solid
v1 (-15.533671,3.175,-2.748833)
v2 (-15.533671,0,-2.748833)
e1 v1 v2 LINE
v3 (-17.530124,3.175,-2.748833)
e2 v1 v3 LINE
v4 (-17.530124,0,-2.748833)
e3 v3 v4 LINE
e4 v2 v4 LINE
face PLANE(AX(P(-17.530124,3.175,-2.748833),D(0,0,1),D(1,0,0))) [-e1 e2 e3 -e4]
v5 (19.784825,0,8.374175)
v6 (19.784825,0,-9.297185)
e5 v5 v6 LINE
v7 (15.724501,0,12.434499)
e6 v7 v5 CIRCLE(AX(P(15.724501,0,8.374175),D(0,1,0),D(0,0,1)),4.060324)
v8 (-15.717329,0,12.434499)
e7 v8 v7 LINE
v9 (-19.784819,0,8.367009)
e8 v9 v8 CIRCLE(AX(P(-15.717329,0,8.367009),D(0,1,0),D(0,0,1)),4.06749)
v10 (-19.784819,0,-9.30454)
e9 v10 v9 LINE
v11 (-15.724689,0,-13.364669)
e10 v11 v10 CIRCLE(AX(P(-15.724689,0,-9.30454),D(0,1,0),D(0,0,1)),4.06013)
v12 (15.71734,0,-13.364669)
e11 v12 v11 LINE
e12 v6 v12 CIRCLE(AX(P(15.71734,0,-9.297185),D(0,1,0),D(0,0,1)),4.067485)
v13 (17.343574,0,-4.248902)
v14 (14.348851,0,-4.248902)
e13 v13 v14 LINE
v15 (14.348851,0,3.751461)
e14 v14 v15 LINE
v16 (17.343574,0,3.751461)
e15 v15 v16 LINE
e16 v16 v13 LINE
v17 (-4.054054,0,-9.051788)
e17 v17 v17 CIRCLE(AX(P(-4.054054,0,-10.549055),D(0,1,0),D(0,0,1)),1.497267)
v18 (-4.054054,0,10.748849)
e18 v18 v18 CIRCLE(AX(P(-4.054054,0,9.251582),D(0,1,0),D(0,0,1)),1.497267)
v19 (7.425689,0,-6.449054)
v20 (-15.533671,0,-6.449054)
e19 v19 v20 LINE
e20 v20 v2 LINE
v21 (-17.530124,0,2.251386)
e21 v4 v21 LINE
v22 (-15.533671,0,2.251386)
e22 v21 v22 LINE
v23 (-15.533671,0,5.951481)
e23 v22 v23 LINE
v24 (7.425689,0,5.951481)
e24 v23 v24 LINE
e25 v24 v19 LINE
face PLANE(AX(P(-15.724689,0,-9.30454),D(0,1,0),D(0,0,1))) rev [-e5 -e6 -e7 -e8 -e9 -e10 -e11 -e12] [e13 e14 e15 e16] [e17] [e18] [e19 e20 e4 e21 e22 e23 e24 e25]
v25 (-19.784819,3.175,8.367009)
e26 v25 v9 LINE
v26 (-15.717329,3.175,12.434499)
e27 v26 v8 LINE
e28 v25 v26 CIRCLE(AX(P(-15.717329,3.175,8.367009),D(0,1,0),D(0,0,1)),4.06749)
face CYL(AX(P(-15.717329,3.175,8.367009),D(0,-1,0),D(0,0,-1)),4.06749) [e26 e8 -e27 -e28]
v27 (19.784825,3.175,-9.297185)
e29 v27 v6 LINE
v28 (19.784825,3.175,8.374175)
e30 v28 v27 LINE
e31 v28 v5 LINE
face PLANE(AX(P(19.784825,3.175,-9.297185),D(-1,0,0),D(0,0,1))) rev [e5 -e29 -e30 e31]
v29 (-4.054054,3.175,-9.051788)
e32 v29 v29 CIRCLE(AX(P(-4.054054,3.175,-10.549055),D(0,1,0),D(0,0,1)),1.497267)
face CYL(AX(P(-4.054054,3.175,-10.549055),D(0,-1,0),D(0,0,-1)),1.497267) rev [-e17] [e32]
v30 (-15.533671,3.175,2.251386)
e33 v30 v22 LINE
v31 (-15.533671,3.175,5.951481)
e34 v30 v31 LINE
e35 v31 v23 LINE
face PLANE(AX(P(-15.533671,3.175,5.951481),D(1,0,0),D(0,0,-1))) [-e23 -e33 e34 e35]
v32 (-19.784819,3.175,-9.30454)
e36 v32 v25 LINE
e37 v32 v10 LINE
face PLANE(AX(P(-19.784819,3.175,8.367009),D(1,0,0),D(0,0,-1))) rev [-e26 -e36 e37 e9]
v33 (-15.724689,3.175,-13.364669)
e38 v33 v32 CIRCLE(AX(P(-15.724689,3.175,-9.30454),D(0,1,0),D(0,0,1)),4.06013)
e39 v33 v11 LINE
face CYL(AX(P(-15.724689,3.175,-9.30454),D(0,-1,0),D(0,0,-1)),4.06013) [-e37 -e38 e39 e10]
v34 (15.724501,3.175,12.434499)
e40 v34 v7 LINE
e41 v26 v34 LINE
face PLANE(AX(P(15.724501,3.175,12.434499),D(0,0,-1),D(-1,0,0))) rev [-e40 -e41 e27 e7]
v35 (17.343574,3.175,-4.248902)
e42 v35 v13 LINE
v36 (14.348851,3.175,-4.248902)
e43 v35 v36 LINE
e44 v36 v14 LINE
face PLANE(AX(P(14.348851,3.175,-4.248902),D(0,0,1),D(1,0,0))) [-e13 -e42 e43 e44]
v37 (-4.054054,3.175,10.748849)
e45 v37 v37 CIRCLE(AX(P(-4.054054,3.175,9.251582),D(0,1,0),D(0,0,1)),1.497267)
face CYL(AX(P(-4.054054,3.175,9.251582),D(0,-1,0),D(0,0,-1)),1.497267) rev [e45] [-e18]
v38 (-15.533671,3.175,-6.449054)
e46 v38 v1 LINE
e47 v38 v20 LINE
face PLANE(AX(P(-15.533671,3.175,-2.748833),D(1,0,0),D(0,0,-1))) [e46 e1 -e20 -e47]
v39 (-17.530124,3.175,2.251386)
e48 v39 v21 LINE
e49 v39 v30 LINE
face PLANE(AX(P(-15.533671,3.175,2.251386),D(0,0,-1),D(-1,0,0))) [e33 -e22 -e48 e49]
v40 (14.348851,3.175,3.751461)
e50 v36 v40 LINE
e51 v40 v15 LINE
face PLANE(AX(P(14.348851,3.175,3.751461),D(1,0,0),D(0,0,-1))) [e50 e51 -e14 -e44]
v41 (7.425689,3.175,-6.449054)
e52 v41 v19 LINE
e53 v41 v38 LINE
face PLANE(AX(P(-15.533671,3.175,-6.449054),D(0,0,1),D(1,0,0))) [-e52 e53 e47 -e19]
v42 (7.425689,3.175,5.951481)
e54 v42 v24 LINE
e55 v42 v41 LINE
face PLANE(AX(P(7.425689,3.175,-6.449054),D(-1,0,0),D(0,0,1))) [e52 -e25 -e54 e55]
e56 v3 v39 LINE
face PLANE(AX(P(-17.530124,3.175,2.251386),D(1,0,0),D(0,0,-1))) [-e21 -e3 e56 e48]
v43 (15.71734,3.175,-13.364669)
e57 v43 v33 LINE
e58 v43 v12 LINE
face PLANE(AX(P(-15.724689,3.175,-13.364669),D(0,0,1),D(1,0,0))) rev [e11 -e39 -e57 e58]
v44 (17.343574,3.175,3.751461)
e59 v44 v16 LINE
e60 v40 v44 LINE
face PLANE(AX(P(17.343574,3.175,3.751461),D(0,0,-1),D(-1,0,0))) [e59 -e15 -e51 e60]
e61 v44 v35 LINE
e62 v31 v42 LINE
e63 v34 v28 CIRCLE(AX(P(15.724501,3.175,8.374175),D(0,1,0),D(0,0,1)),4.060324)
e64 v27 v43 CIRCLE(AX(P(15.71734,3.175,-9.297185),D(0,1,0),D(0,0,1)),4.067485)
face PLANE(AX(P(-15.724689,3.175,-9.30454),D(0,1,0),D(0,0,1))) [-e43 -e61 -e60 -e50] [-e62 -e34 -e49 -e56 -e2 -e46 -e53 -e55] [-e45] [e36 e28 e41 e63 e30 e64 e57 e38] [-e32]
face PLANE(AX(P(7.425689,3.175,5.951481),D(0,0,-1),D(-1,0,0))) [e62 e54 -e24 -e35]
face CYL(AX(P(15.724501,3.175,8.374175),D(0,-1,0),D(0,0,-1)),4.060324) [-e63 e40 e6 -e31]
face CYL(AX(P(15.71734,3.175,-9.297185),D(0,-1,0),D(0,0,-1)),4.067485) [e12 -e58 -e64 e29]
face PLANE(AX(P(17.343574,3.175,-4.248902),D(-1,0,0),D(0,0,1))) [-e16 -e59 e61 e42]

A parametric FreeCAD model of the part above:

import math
import FreeCAD as App
import Part
import Sketcher
Q = App.Units.Quantity


def add_polygon(sketch, points):
    """Adds a closed chain of lines whose ends are joined by coincident constraints."""
    first, n = sketch.GeometryCount, len(points)
    for a, b in zip(points, points[1:] + points[:1]):
        sketch.addGeometry(Part.LineSegment(App.Vector(*a, 0), App.Vector(*b, 0)), False)
    for i in range(n):
        sketch.addConstraint(Sketcher.Constraint("Coincident", first + i, 2, first + (i + 1) % n, 1))

doc = App.newDocument("Part")
body = doc.addObject("PartDesign::Body", "Body")

# Sketch on XZ plane
sketch1 = doc.addObject("Sketcher::SketchObject", "Sketch")
body.addObject(sketch1)
sketch1.AttachmentSupport = (doc.XZ_Plane, [""])
sketch1.MapMode = "FlatFace"
sketch1.addGeometry(Part.LineSegment(App.Vector(15.7, -13.4, 0), App.Vector(-15.7, -13.4, 0)), False)  # 0
sketch1.addGeometry(Part.ArcOfCircle(Part.Circle(App.Vector(-15.7, -9.3, 0), App.Vector(0, 0, 1), 4.1), math.radians(180), math.radians(270)), False)  # 1
sketch1.addGeometry(Part.LineSegment(App.Vector(-19.8, -9.3, 0), App.Vector(-19.8, 8.4, 0)), False)  # 2
sketch1.addGeometry(Part.ArcOfCircle(Part.Circle(App.Vector(-15.7, 8.4, 0), App.Vector(0, 0, 1), 4.1), math.radians(90), math.radians(180)), False)  # 3
sketch1.addGeometry(Part.LineSegment(App.Vector(-15.7, 12.4, 0), App.Vector(15.7, 12.4, 0)), False)  # 4
sketch1.addGeometry(Part.ArcOfCircle(Part.Circle(App.Vector(15.7, 8.4, 0), App.Vector(0, 0, 1), 4.1), math.radians(0), math.radians(90)), False)  # 5
sketch1.addGeometry(Part.LineSegment(App.Vector(19.8, 8.4, 0), App.Vector(19.8, -9.3, 0)), False)  # 6
sketch1.addGeometry(Part.ArcOfCircle(Part.Circle(App.Vector(15.7, -9.3, 0), App.Vector(0, 0, 1), 4.1), math.radians(-90), math.radians(0)), False)  # 7
add_polygon(sketch1, [(14.3, 3.8), (14.3, -4.2), (17.3, -4.2), (17.3, 3.8)])  # lines 8-11
sketch1.addGeometry(Part.Circle(App.Vector(-4.1, 9.3, 0), App.Vector(0, 0, 1), 1.5), False)  # 12
add_polygon(sketch1, [(-15.5, -6.4), (7.4, -6.4), (7.4, 6), (-15.5, 6), (-15.5, 2.3), (-17.5, 2.3), (-17.5, -2.7), (-15.5, -2.7)])  # lines 13-20
sketch1.addGeometry(Part.Circle(App.Vector(-4.1, -10.5, 0), App.Vector(0, 0, 1), 1.5), False)  # 21
sketch1.addConstraint(Sketcher.Constraint("Tangent", 0, 2, 1, 2))
sketch1.addConstraint(Sketcher.Constraint("Tangent", 1, 1, 2, 1))
sketch1.addConstraint(Sketcher.Constraint("Tangent", 2, 2, 3, 2))
sketch1.addConstraint(Sketcher.Constraint("Tangent", 3, 1, 4, 1))
sketch1.addConstraint(Sketcher.Constraint("Tangent", 4, 2, 5, 2))
sketch1.addConstraint(Sketcher.Constraint("Tangent", 5, 1, 6, 1))
sketch1.addConstraint(Sketcher.Constraint("Tangent", 6, 2, 7, 2))
sketch1.addConstraint(Sketcher.Constraint("Tangent", 7, 1, 0, 1))
sketch1.addConstraint(Sketcher.Constraint("Horizontal", 0))
sketch1.addConstraint(Sketcher.Constraint("Vertical", 2))
sketch1.addConstraint(Sketcher.Constraint("Horizontal", 4))
sketch1.addConstraint(Sketcher.Constraint("Vertical", 6))
sketch1.addConstraint(Sketcher.Constraint("Vertical", 8))
sketch1.addConstraint(Sketcher.Constraint("Horizontal", 9))
sketch1.addConstraint(Sketcher.Constraint("Vertical", 10))
sketch1.addConstraint(Sketcher.Constraint("Horizontal", 11))
sketch1.addConstraint(Sketcher.Constraint("Horizontal", 13))
sketch1.addConstraint(Sketcher.Constraint("Vertical", 14))
sketch1.addConstraint(Sketcher.Constraint("Horizontal", 15))
sketch1.addConstraint(Sketcher.Constraint("Vertical", 16))
sketch1.addConstraint(Sketcher.Constraint("Horizontal", 17))
sketch1.addConstraint(Sketcher.Constraint("Vertical", 18))
sketch1.addConstraint(Sketcher.Constraint("Horizontal", 19))
sketch1.addConstraint(Sketcher.Constraint("Vertical", 20))
sketch1.addConstraint(Sketcher.Constraint("Equal", 12, 21))
sketch1.addConstraint(Sketcher.Constraint("Vertical", 12, 3, 21, 3))
sketch1.addConstraint(Sketcher.Constraint("Vertical", 16, 2, 19, 2))
sketch1.addConstraint(Sketcher.Constraint("Radius", 1, Q("4.06013 mm")))
sketch1.addConstraint(Sketcher.Constraint("Radius", 3, Q("4.06749 mm")))
sketch1.addConstraint(Sketcher.Constraint("Diameter", 12, Q("2.994533 mm")))
sketch1.addConstraint(Sketcher.Constraint("Radius", 5, Q("4.060324 mm")))
sketch1.addConstraint(Sketcher.Constraint("Radius", 7, Q("4.067485 mm")))
sketch1.addConstraint(Sketcher.Constraint("DistanceX", 0, 2, 0, 1, Q("31.44203 mm")))
sketch1.addConstraint(Sketcher.Constraint("DistanceX", 13, 1, 13, 2, Q("22.959361 mm")))
sketch1.addConstraint(Sketcher.Constraint("DistanceY", 2, 1, 2, 2, Q("17.671549 mm")))
sketch1.addConstraint(Sketcher.Constraint("DistanceY", 18, 2, 18, 1, Q("5.000219 mm")))
sketch1.addConstraint(Sketcher.Constraint("DistanceY", 20, 2, 20, 1, Q("3.700222 mm")))
sketch1.addConstraint(Sketcher.Constraint("DistanceX", -1, 1, 5, 3, Q("15.724501 mm")))
sketch1.addConstraint(Sketcher.Constraint("DistanceY", -1, 1, 3, 1, Q("12.434499 mm")))
sketch1.addConstraint(Sketcher.Constraint("DistanceY", 21, 3, 13, 2, Q("4.1 mm")))
sketch1.addConstraint(Sketcher.Constraint("DistanceY", 14, 2, 12, 3, Q("3.300101 mm")))
sketch1.addConstraint(Sketcher.Constraint("DistanceX", 9, 1, 9, 2, Q("2.994723 mm")))
sketch1.addConstraint(Sketcher.Constraint("DistanceX", 17, 2, 17, 1, Q("1.996453 mm")))
sketch1.addConstraint(Sketcher.Constraint("DistanceY", 8, 2, 8, 1, Q("8.000363 mm")))
sketch1.addConstraint(Sketcher.Constraint("DistanceY", 14, 1, 14, 2, Q("12.400535 mm")))
sketch1.addConstraint(Sketcher.Constraint("DistanceX", -1, 1, 8, 2, Q("14.348851 mm")))
sketch1.addConstraint(Sketcher.Constraint("DistanceY", -1, 1, 10, 2, Q("3.751461 mm")))
sketch1.addConstraint(Sketcher.Constraint("DistanceX", -1, 1, 13, 2, Q("7.425689 mm")))
sketch1.addConstraint(Sketcher.Constraint("DistanceY", -1, 1, 14, 2, Q("5.951481 mm")))
sketch1.addConstraint(Sketcher.Constraint("DistanceX", 12, 3, 5, 1, Q("23.83888 mm")))
pad1 = doc.addObject("PartDesign::Pad", "Pad")
body.addObject(pad1)
pad1.Profile = sketch1
pad1.Length = Q("0.125 in")
pad1.Reversed = True

doc.recompute()
